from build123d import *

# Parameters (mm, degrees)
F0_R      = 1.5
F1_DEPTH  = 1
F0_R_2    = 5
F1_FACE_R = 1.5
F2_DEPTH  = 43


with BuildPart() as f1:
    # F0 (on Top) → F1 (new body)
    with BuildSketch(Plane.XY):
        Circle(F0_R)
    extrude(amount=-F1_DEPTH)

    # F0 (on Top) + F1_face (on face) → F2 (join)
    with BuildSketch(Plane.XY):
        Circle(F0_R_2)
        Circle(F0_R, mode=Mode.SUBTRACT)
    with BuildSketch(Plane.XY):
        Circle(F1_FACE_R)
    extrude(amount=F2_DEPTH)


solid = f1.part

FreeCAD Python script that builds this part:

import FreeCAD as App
import Part
import Sketcher

V = App.Vector

doc = App.newDocument("Part")
body = doc.addObject("PartDesign::Body", "Body")

sketch1 = body.newObject("Sketcher::SketchObject", "Sketch")
sketch1.AttachmentSupport = (doc.getObject("XY_Plane"), [""])
sketch1.MapMode = "FlatFace"
sketch1.addGeometry(Part.Circle(V(0, 0, 0), V(0, 0, 1), 1.5), False)
sketch1.addConstraint([
    Sketcher.Constraint("Coincident", 0, 3, -1, 1),
    Sketcher.Constraint("Diameter", 0, 3.0),
])
pad1 = body.newObject("PartDesign::Pad", "Pad")
pad1.Profile = sketch1
pad1.Length = 1
pad1.Reversed = True

sketch2 = body.newObject("Sketcher::SketchObject", "Sketch001")
sketch2.AttachmentSupport = (doc.getObject("XY_Plane"), [""])
sketch2.MapMode = "FlatFace"
sketch2.addGeometry(Part.Circle(V(0, 0, 0), V(0, 0, 1), 5), False)
sketch2.addConstraint([
    Sketcher.Constraint("Coincident", 0, 3, -1, 1),
    Sketcher.Constraint("Diameter", 0, 10.0),
])
pad2 = body.newObject("PartDesign::Pad", "Pad001")
pad2.Profile = sketch2
pad2.Length = 43

doc.recompute()
